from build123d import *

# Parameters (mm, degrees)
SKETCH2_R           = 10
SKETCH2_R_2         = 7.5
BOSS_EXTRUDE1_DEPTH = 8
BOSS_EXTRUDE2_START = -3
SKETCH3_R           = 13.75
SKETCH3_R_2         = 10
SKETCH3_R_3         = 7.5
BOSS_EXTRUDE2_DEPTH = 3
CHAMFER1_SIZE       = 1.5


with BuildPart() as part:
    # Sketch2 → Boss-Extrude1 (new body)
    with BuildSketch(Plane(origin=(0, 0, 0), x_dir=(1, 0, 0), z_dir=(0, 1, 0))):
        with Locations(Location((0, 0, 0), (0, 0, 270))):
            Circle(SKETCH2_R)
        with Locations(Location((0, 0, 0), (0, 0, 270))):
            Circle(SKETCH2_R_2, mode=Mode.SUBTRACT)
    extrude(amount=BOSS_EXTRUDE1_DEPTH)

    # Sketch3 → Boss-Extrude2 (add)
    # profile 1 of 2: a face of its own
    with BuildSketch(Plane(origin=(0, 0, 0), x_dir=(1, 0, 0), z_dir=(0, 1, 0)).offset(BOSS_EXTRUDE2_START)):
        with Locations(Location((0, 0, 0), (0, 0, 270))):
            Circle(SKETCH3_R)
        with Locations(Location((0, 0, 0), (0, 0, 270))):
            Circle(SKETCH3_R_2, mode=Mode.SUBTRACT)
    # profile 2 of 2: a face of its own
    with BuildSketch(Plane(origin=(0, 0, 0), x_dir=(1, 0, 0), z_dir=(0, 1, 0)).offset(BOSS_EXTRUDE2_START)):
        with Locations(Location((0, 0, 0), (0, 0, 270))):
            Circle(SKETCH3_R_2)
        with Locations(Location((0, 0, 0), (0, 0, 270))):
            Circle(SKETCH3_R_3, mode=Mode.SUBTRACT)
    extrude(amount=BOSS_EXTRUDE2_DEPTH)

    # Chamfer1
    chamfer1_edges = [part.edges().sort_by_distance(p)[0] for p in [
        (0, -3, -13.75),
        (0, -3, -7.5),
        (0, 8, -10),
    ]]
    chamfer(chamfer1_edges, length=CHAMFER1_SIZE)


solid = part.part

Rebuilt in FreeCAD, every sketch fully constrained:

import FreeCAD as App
import Part
import Sketcher
from FreeCAD import Vector


def edges_at(feature, points):
    """Names of the edges that pass closest to the given points."""
    edges = feature.Shape.Edges
    near = lambda p: min(range(len(edges)), key=lambda i: edges[i].distToShape(Part.Vertex(*p))[0])
    return sorted({f"Edge{near(p) + 1}" for p in points})

doc = App.newDocument("Part")
params = doc.addObject("Spreadsheet::Sheet", "Params")
for row, (alias, value) in enumerate([
    ("sketch1_diameter", "20 mm"),
    ("sketch1_diameter2", "15 mm"),
    ("pad1_length", "8 mm"),
    ("sketch2_diameter", "15 mm"),
    ("sketch2_diameter2", "27.5 mm"),
    ("pad2_length", "3 mm"),
    ("chamfer_size", "1.5 mm"),
], start=1):
    params.set(f"A{row}", alias)
    params.set(f"B{row}", "=" + value)
    params.setAlias(f"B{row}", alias)

body = doc.addObject("PartDesign::Body", "Body")

# Sketch on XZ plane
sketch1 = doc.addObject("Sketcher::SketchObject", "Sketch")
body.addObject(sketch1)
sketch1.AttachmentSupport = (doc.XZ_Plane, [""])
sketch1.MapMode = "FlatFace"
sketch1.addGeometry([
    Part.Circle(Vector(0, 0, 0), Vector(0, 0, 1), 10),
    Part.Circle(Vector(0, 0, 0), Vector(0, 0, 1), 7.5),
], False)
sketch1.addConstraint([
    Sketcher.Constraint("Coincident", 0, 3, -1, 1),
    Sketcher.Constraint("Coincident", 1, 3, -1, 1),
    Sketcher.Constraint("Diameter", 0, 20.0),
    Sketcher.Constraint("Diameter", 1, 15.0),
])
sketch1.setExpression("Constraints[2]", "Params.sketch1_diameter")
sketch1.setExpression("Constraints[3]", "Params.sketch1_diameter2")
pad1 = doc.addObject("PartDesign::Pad", "Pad")
body.addObject(pad1)
pad1.Profile = sketch1
pad1.setExpression("Length", "Params.pad1_length")
pad1.Reversed = True

# Sketch on XZ plane
sketch2 = doc.addObject("Sketcher::SketchObject", "Sketch001")
body.addObject(sketch2)
sketch2.AttachmentSupport = (doc.XZ_Plane, [""])
sketch2.MapMode = "FlatFace"
sketch2.AttachmentOffset = App.Placement(Vector(0, 0, 3), App.Rotation())
sketch2.addGeometry([
    Part.Circle(Vector(0, 0, 0), Vector(0, 0, 1), 13.75),
    Part.Circle(Vector(0, 0, 0), Vector(0, 0, 1), 7.5),
], False)
sketch2.addConstraint([
    Sketcher.Constraint("Coincident", 0, 3, -1, 1),
    Sketcher.Constraint("Coincident", 1, 3, -1, 1),
    Sketcher.Constraint("Diameter", 1, 15.0),
    Sketcher.Constraint("Diameter", 0, 27.5),
])
sketch2.setExpression("Constraints[2]", "Params.sketch2_diameter")
sketch2.setExpression("Constraints[3]", "Params.sketch2_diameter2")
pad2 = doc.addObject("PartDesign::Pad", "Pad001")
body.addObject(pad2)
pad2.Profile = sketch2
pad2.setExpression("Length", "Params.pad2_length")
pad2.Reversed = True
doc.recompute()

chamfer = doc.addObject("PartDesign::Chamfer", "Chamfer")
body.addObject(chamfer)
chamfer.Base = (pad2, edges_at(pad2, [(0, -3, -13.75), (0, -3, -7.5), (0, 8, -10)]))
chamfer.setExpression("Size", "Params.chamfer_size")

doc.recompute()
